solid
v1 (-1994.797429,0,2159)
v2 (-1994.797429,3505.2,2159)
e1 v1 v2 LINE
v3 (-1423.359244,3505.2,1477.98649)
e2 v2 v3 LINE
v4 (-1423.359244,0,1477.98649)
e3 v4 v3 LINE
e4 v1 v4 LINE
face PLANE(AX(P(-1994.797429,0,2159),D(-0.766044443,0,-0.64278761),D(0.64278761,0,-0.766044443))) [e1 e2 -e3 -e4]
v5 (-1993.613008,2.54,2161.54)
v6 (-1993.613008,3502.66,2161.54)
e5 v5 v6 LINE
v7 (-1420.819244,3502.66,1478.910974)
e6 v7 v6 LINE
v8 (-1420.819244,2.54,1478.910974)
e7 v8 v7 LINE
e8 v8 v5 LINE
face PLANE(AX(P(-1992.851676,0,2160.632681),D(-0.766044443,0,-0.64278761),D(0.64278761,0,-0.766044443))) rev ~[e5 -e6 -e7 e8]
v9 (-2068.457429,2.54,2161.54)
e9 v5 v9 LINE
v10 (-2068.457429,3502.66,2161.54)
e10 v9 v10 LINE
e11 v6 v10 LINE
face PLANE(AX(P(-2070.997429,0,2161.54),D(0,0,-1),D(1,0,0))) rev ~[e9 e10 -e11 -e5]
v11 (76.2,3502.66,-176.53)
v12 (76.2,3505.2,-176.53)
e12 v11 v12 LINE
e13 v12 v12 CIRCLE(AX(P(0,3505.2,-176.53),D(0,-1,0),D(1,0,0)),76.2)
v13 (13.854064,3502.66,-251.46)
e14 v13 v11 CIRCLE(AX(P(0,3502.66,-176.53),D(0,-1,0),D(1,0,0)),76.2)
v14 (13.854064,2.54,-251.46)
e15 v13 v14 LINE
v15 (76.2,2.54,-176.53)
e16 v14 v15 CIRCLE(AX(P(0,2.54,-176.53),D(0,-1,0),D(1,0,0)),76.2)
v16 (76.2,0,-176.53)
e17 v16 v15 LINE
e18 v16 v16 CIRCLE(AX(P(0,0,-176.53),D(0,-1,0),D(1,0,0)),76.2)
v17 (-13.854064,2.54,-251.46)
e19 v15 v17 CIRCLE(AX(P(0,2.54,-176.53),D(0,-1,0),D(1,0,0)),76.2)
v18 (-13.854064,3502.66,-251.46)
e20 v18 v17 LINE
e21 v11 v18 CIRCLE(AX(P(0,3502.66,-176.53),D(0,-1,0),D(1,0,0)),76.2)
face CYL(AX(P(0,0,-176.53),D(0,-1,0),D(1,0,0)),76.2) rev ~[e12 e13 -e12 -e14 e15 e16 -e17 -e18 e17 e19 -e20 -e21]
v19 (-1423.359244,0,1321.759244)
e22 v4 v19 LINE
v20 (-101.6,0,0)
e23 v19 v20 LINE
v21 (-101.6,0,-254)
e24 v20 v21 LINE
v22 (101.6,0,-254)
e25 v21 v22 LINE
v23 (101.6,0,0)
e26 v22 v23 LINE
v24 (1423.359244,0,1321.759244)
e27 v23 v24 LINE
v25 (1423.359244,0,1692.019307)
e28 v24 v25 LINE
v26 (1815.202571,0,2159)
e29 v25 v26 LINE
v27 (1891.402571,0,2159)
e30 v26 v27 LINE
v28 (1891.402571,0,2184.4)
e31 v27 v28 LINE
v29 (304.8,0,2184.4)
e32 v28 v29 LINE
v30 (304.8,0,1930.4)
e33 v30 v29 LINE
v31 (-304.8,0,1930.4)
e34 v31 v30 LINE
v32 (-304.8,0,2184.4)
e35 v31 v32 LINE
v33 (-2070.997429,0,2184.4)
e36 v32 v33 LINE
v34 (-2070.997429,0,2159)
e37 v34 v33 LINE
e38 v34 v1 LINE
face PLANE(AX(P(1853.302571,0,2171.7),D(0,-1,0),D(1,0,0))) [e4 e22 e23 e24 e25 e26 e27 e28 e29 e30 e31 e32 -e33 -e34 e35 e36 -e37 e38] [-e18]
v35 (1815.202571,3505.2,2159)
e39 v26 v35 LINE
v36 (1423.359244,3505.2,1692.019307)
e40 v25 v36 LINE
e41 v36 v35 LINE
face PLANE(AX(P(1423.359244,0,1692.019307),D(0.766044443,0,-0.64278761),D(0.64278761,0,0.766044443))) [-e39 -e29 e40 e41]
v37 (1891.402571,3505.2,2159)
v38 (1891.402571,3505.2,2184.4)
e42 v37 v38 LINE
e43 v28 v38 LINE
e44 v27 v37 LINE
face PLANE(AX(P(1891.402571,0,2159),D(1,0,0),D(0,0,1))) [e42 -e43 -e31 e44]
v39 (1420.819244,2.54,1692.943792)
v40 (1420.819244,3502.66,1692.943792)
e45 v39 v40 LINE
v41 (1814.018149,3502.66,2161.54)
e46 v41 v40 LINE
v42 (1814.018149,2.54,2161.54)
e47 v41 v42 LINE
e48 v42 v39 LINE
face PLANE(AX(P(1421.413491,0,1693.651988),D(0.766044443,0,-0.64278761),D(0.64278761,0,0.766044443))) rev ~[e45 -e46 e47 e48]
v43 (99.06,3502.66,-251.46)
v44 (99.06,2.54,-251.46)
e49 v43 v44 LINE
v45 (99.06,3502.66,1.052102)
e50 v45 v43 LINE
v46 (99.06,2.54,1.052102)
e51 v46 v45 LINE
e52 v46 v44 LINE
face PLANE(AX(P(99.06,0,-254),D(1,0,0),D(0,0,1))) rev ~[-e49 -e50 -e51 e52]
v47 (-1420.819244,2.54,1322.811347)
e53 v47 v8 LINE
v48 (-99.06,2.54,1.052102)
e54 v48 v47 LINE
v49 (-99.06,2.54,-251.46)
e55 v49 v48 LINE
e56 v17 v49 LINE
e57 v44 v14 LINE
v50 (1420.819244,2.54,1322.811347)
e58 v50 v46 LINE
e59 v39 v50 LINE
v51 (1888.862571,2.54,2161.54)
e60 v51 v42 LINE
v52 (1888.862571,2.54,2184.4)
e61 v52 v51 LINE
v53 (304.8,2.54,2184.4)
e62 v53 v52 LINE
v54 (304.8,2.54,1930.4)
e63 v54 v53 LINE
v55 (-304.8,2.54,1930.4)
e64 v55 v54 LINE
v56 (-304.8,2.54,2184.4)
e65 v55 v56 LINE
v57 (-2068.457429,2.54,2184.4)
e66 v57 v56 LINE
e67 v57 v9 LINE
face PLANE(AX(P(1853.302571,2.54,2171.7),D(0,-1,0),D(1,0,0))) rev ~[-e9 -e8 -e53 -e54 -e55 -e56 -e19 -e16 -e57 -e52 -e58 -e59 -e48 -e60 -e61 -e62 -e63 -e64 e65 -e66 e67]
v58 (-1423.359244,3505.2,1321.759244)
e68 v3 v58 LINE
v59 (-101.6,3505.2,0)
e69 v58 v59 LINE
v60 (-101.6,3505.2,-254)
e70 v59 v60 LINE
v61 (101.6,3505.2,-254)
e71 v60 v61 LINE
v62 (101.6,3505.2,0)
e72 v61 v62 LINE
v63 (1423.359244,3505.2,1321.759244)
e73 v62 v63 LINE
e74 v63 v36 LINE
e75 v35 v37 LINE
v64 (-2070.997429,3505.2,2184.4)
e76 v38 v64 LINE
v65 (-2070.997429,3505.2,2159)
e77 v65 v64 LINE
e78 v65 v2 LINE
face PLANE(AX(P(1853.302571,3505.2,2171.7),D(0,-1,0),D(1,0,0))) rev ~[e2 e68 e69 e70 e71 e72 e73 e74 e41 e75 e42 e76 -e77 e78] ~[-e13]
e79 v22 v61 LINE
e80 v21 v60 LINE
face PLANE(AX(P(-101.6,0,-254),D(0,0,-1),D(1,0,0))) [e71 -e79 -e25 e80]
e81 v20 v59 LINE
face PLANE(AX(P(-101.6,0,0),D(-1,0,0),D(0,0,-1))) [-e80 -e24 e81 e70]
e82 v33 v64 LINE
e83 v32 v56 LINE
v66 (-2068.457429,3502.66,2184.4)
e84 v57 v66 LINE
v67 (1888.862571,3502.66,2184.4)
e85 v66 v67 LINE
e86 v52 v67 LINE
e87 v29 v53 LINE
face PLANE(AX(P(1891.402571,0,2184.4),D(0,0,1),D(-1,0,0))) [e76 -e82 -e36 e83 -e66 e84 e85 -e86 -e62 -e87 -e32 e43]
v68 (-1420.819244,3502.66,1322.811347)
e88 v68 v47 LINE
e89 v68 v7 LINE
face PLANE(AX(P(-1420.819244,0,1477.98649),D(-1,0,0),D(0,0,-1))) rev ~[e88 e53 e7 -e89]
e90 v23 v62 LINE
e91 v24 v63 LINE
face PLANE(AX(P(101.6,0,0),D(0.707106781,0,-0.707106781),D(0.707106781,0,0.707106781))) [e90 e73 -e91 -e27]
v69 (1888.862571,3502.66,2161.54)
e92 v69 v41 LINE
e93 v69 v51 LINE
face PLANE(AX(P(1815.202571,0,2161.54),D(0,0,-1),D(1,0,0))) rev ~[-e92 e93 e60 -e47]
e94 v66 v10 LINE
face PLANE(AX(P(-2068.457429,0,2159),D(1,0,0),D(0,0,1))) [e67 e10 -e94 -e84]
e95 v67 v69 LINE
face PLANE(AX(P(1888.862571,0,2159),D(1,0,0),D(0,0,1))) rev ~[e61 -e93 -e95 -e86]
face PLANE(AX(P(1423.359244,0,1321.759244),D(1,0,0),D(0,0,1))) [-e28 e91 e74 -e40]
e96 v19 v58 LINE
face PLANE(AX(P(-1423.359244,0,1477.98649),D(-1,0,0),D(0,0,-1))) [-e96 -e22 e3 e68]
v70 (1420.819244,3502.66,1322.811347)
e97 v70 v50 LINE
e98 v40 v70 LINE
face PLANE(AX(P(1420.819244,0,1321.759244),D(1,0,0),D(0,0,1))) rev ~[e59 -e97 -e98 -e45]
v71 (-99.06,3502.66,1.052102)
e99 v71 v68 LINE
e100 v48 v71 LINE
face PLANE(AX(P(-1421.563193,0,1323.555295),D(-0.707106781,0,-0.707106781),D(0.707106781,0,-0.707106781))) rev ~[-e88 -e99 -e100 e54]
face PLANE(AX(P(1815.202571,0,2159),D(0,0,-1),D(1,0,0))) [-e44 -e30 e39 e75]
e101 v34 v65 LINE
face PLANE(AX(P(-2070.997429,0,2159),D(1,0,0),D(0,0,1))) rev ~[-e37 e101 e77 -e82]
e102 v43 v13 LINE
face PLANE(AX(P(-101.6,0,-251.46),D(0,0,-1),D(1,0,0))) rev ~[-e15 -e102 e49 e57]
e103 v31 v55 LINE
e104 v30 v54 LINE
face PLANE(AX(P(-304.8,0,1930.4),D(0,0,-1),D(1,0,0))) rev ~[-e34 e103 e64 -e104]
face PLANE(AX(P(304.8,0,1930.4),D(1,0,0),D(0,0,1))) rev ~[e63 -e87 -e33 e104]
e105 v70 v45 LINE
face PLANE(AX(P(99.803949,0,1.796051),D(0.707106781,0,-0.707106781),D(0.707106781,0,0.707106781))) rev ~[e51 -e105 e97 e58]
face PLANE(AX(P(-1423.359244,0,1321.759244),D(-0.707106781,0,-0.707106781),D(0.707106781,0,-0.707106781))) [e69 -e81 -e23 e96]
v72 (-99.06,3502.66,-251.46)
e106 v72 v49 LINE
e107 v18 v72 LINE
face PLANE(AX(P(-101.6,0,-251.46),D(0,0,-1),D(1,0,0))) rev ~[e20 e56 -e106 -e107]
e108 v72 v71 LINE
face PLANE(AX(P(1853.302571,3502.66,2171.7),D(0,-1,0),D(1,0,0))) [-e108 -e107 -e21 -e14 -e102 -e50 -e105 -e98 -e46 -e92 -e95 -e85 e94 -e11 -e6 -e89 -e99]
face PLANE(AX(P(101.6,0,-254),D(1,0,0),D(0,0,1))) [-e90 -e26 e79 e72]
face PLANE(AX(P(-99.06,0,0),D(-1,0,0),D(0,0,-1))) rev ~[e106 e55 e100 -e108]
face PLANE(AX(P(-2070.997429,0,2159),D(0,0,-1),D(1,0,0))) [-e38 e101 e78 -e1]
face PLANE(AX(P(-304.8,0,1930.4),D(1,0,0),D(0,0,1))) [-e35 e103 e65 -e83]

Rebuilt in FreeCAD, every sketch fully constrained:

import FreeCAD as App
import Part
import Sketcher
from FreeCAD import Vector
Q = App.Units.Quantity


def faces_at(feature, points):
    """Names of the faces that lie closest to the given points."""
    faces = feature.Shape.Faces
    near = lambda p: min(range(len(faces)), key=lambda i: faces[i].distToShape(Part.Vertex(*p))[0])
    return sorted({f"Face{near(p) + 1}" for p in points})

doc = App.newDocument("Part")
body = doc.addObject("PartDesign::Body", "Body")

sketch1 = body.newObject("Sketcher::SketchObject", "Sketch")
sketch1.AttachmentSupport = (doc.getObject("XZ_Plane"), [""])
sketch1.MapMode = "FlatFace"
sketch1.addGeometry([
    Part.LineSegment(Vector(1815, 2159, 0), Vector(1891, 2159, 0)),
    Part.LineSegment(Vector(1891, 2159, 0), Vector(1891, 2184, 0)),
    Part.LineSegment(Vector(1891, 2184, 0), Vector(-2071, 2184, 0)),
    Part.LineSegment(Vector(-2071, 2184, 0), Vector(-2071, 2159, 0)),
    Part.LineSegment(Vector(-2071, 2159, 0), Vector(-1995, 2159, 0)),
    Part.LineSegment(Vector(-1995, 2159, 0), Vector(-1423, 1478, 0)),
    Part.LineSegment(Vector(-1423, 1478, 0), Vector(-1423, 1322, 0)),
    Part.LineSegment(Vector(-1423, 1322, 0), Vector(-102, 0, 0)),
    Part.LineSegment(Vector(-102, 0, 0), Vector(-102, -254, 0)),
    Part.LineSegment(Vector(-102, -254, 0), Vector(102, -254, 0)),
    Part.LineSegment(Vector(102, -254, 0), Vector(102, 0, 0)),
    Part.LineSegment(Vector(102, 0, 0), Vector(1423, 1322, 0)),
    Part.LineSegment(Vector(1423, 1322, 0), Vector(1423, 1692, 0)),
    Part.LineSegment(Vector(1423, 1692, 0), Vector(1815, 2159, 0)),
], False)
sketch1.addConstraint([
    Sketcher.Constraint("Coincident", 0, 2, 1, 1),
    Sketcher.Constraint("Coincident", 1, 2, 2, 1),
    Sketcher.Constraint("Coincident", 2, 2, 3, 1),
    Sketcher.Constraint("Coincident", 3, 2, 4, 1),
    Sketcher.Constraint("Coincident", 4, 2, 5, 1),
    Sketcher.Constraint("Coincident", 5, 2, 6, 1),
    Sketcher.Constraint("Coincident", 6, 2, 7, 1),
    Sketcher.Constraint("Coincident", 7, 2, 8, 1),
    Sketcher.Constraint("Coincident", 8, 2, 9, 1),
    Sketcher.Constraint("Coincident", 9, 2, 10, 1),
    Sketcher.Constraint("Coincident", 10, 2, 11, 1),
    Sketcher.Constraint("Coincident", 11, 2, 12, 1),
    Sketcher.Constraint("Coincident", 12, 2, 13, 1),
    Sketcher.Constraint("Coincident", 13, 2, 0, 1),
    Sketcher.Constraint("Horizontal", 0),
    Sketcher.Constraint("Vertical", 1),
    Sketcher.Constraint("Horizontal", 2),
    Sketcher.Constraint("Vertical", 3),
    Sketcher.Constraint("Horizontal", 4),
    Sketcher.Constraint("Vertical", 6),
    Sketcher.Constraint("Vertical", 8),
    Sketcher.Constraint("Horizontal", 9),
    Sketcher.Constraint("Vertical", 10),
    Sketcher.Constraint("Vertical", 12),
    Sketcher.Constraint("Symmetric", 7, 2, 10, 2, -1, 1),
    Sketcher.Constraint("Symmetric", 6, 2, 11, 2, -2),
    Sketcher.Constraint("PointOnObject", 7, 2, -1),
    Sketcher.Constraint("Perpendicular", 7, 11),
    Sketcher.Constraint("Horizontal", 0, 2, 3, 2),
    Sketcher.Constraint("Equal", 0, 4),
    Sketcher.Constraint("DistanceX", 0, 1, 0, 2, Q("3 in")),
    Sketcher.Constraint("DistanceX", 2, 2, 2, 1, Q("156 in")),
    Sketcher.Constraint("DistanceX", 9, 1, 9, 2, Q("8 in")),
    Sketcher.Constraint("DistanceY", 1, 1, 1, 2, Q("1 in")),
    Sketcher.Constraint("DistanceY", 8, 2, 8, 1, Q("10 in")),
    Sketcher.Constraint("Distance", 5, Q("35 in")),
    Sketcher.Constraint("Distance", 13, Q("24 in")),
    Sketcher.Constraint("DistanceY", -1, 1, 0, 2, Q("85 in")),
    Sketcher.Constraint("Angle", 5, Q("-50 deg")),
    Sketcher.Constraint("Angle", 13, Q("50 deg")),
])
pad1 = body.newObject("PartDesign::Pad", "Pad")
pad1.Profile = sketch1
pad1.Length = Q("138 in")
pad1.Reversed = True
doc.recompute()

thickness = body.newObject("PartDesign::Thickness", "Thickness")
thickness.Base = (pad1, faces_at(pad1, [(-89.797, 1752.6, 2184.4)]))
thickness.Value = Q("0.1 in")
thickness.Reversed = True
thickness.Join = "Intersection"

sketch2 = body.newObject("Sketcher::SketchObject", "Sketch001")
sketch2.AttachmentSupport = (doc.getObject("XZ_Plane"), [""])
sketch2.MapMode = "FlatFace"
sketch2.addGeometry(Part.Circle(Vector(0, -177, 0), Vector(0, 0, 1), 76), False)
sketch2.addConstraint([
    Sketcher.Constraint("PointOnObject", 0, 3, -2),
    Sketcher.Constraint("Diameter", 0, Q("6 in")),
    Sketcher.Constraint("DistanceY", 0, 3, -1, 1, Q("6.95 in")),
])
pocket1 = body.newObject("PartDesign::Pocket", "Pocket")
pocket1.Profile = sketch2
pocket1.Type = "ThroughAll"

sketch3 = body.newObject("Sketcher::SketchObject", "Sketch002")
sketch3.AttachmentSupport = (doc.getObject("XZ_Plane"), [""])
sketch3.MapMode = "FlatFace"
sketch3.addGeometry([
    Part.LineSegment(Vector(-305, 2184, 0), Vector(-305, 1930, 0)),
    Part.LineSegment(Vector(-305, 1930, 0), Vector(305, 1930, 0)),
    Part.LineSegment(Vector(305, 1930, 0), Vector(305, 2184, 0)),
    Part.LineSegment(Vector(305, 2184, 0), Vector(-305, 2184, 0)),
], False)
sketch3.addConstraint([
    Sketcher.Constraint("Coincident", 0, 2, 1, 1),
    Sketcher.Constraint("Coincident", 1, 2, 2, 1),
    Sketcher.Constraint("Coincident", 2, 2, 3, 1),
    Sketcher.Constraint("Coincident", 3, 2, 0, 1),
    Sketcher.Constraint("Vertical", 0),
    Sketcher.Constraint("Horizontal", 1),
    Sketcher.Constraint("Vertical", 2),
    Sketcher.Constraint("Horizontal", 3),
    Sketcher.Constraint("DistanceX", 1, 1, 1, 2, Q("24 in")),
    Sketcher.Constraint("DistanceY", 0, 2, 0, 1, Q("10 in")),
    Sketcher.Constraint("DistanceX", 0, 2, -1, 1, Q("12 in")),
    Sketcher.Constraint("DistanceY", -1, 1, 0, 2, Q("76 in")),
])
pocket2 = body.newObject("PartDesign::Pocket", "Pocket001")
pocket2.Profile = sketch3
pocket2.Length = Q("1 in")

doc.recompute()
